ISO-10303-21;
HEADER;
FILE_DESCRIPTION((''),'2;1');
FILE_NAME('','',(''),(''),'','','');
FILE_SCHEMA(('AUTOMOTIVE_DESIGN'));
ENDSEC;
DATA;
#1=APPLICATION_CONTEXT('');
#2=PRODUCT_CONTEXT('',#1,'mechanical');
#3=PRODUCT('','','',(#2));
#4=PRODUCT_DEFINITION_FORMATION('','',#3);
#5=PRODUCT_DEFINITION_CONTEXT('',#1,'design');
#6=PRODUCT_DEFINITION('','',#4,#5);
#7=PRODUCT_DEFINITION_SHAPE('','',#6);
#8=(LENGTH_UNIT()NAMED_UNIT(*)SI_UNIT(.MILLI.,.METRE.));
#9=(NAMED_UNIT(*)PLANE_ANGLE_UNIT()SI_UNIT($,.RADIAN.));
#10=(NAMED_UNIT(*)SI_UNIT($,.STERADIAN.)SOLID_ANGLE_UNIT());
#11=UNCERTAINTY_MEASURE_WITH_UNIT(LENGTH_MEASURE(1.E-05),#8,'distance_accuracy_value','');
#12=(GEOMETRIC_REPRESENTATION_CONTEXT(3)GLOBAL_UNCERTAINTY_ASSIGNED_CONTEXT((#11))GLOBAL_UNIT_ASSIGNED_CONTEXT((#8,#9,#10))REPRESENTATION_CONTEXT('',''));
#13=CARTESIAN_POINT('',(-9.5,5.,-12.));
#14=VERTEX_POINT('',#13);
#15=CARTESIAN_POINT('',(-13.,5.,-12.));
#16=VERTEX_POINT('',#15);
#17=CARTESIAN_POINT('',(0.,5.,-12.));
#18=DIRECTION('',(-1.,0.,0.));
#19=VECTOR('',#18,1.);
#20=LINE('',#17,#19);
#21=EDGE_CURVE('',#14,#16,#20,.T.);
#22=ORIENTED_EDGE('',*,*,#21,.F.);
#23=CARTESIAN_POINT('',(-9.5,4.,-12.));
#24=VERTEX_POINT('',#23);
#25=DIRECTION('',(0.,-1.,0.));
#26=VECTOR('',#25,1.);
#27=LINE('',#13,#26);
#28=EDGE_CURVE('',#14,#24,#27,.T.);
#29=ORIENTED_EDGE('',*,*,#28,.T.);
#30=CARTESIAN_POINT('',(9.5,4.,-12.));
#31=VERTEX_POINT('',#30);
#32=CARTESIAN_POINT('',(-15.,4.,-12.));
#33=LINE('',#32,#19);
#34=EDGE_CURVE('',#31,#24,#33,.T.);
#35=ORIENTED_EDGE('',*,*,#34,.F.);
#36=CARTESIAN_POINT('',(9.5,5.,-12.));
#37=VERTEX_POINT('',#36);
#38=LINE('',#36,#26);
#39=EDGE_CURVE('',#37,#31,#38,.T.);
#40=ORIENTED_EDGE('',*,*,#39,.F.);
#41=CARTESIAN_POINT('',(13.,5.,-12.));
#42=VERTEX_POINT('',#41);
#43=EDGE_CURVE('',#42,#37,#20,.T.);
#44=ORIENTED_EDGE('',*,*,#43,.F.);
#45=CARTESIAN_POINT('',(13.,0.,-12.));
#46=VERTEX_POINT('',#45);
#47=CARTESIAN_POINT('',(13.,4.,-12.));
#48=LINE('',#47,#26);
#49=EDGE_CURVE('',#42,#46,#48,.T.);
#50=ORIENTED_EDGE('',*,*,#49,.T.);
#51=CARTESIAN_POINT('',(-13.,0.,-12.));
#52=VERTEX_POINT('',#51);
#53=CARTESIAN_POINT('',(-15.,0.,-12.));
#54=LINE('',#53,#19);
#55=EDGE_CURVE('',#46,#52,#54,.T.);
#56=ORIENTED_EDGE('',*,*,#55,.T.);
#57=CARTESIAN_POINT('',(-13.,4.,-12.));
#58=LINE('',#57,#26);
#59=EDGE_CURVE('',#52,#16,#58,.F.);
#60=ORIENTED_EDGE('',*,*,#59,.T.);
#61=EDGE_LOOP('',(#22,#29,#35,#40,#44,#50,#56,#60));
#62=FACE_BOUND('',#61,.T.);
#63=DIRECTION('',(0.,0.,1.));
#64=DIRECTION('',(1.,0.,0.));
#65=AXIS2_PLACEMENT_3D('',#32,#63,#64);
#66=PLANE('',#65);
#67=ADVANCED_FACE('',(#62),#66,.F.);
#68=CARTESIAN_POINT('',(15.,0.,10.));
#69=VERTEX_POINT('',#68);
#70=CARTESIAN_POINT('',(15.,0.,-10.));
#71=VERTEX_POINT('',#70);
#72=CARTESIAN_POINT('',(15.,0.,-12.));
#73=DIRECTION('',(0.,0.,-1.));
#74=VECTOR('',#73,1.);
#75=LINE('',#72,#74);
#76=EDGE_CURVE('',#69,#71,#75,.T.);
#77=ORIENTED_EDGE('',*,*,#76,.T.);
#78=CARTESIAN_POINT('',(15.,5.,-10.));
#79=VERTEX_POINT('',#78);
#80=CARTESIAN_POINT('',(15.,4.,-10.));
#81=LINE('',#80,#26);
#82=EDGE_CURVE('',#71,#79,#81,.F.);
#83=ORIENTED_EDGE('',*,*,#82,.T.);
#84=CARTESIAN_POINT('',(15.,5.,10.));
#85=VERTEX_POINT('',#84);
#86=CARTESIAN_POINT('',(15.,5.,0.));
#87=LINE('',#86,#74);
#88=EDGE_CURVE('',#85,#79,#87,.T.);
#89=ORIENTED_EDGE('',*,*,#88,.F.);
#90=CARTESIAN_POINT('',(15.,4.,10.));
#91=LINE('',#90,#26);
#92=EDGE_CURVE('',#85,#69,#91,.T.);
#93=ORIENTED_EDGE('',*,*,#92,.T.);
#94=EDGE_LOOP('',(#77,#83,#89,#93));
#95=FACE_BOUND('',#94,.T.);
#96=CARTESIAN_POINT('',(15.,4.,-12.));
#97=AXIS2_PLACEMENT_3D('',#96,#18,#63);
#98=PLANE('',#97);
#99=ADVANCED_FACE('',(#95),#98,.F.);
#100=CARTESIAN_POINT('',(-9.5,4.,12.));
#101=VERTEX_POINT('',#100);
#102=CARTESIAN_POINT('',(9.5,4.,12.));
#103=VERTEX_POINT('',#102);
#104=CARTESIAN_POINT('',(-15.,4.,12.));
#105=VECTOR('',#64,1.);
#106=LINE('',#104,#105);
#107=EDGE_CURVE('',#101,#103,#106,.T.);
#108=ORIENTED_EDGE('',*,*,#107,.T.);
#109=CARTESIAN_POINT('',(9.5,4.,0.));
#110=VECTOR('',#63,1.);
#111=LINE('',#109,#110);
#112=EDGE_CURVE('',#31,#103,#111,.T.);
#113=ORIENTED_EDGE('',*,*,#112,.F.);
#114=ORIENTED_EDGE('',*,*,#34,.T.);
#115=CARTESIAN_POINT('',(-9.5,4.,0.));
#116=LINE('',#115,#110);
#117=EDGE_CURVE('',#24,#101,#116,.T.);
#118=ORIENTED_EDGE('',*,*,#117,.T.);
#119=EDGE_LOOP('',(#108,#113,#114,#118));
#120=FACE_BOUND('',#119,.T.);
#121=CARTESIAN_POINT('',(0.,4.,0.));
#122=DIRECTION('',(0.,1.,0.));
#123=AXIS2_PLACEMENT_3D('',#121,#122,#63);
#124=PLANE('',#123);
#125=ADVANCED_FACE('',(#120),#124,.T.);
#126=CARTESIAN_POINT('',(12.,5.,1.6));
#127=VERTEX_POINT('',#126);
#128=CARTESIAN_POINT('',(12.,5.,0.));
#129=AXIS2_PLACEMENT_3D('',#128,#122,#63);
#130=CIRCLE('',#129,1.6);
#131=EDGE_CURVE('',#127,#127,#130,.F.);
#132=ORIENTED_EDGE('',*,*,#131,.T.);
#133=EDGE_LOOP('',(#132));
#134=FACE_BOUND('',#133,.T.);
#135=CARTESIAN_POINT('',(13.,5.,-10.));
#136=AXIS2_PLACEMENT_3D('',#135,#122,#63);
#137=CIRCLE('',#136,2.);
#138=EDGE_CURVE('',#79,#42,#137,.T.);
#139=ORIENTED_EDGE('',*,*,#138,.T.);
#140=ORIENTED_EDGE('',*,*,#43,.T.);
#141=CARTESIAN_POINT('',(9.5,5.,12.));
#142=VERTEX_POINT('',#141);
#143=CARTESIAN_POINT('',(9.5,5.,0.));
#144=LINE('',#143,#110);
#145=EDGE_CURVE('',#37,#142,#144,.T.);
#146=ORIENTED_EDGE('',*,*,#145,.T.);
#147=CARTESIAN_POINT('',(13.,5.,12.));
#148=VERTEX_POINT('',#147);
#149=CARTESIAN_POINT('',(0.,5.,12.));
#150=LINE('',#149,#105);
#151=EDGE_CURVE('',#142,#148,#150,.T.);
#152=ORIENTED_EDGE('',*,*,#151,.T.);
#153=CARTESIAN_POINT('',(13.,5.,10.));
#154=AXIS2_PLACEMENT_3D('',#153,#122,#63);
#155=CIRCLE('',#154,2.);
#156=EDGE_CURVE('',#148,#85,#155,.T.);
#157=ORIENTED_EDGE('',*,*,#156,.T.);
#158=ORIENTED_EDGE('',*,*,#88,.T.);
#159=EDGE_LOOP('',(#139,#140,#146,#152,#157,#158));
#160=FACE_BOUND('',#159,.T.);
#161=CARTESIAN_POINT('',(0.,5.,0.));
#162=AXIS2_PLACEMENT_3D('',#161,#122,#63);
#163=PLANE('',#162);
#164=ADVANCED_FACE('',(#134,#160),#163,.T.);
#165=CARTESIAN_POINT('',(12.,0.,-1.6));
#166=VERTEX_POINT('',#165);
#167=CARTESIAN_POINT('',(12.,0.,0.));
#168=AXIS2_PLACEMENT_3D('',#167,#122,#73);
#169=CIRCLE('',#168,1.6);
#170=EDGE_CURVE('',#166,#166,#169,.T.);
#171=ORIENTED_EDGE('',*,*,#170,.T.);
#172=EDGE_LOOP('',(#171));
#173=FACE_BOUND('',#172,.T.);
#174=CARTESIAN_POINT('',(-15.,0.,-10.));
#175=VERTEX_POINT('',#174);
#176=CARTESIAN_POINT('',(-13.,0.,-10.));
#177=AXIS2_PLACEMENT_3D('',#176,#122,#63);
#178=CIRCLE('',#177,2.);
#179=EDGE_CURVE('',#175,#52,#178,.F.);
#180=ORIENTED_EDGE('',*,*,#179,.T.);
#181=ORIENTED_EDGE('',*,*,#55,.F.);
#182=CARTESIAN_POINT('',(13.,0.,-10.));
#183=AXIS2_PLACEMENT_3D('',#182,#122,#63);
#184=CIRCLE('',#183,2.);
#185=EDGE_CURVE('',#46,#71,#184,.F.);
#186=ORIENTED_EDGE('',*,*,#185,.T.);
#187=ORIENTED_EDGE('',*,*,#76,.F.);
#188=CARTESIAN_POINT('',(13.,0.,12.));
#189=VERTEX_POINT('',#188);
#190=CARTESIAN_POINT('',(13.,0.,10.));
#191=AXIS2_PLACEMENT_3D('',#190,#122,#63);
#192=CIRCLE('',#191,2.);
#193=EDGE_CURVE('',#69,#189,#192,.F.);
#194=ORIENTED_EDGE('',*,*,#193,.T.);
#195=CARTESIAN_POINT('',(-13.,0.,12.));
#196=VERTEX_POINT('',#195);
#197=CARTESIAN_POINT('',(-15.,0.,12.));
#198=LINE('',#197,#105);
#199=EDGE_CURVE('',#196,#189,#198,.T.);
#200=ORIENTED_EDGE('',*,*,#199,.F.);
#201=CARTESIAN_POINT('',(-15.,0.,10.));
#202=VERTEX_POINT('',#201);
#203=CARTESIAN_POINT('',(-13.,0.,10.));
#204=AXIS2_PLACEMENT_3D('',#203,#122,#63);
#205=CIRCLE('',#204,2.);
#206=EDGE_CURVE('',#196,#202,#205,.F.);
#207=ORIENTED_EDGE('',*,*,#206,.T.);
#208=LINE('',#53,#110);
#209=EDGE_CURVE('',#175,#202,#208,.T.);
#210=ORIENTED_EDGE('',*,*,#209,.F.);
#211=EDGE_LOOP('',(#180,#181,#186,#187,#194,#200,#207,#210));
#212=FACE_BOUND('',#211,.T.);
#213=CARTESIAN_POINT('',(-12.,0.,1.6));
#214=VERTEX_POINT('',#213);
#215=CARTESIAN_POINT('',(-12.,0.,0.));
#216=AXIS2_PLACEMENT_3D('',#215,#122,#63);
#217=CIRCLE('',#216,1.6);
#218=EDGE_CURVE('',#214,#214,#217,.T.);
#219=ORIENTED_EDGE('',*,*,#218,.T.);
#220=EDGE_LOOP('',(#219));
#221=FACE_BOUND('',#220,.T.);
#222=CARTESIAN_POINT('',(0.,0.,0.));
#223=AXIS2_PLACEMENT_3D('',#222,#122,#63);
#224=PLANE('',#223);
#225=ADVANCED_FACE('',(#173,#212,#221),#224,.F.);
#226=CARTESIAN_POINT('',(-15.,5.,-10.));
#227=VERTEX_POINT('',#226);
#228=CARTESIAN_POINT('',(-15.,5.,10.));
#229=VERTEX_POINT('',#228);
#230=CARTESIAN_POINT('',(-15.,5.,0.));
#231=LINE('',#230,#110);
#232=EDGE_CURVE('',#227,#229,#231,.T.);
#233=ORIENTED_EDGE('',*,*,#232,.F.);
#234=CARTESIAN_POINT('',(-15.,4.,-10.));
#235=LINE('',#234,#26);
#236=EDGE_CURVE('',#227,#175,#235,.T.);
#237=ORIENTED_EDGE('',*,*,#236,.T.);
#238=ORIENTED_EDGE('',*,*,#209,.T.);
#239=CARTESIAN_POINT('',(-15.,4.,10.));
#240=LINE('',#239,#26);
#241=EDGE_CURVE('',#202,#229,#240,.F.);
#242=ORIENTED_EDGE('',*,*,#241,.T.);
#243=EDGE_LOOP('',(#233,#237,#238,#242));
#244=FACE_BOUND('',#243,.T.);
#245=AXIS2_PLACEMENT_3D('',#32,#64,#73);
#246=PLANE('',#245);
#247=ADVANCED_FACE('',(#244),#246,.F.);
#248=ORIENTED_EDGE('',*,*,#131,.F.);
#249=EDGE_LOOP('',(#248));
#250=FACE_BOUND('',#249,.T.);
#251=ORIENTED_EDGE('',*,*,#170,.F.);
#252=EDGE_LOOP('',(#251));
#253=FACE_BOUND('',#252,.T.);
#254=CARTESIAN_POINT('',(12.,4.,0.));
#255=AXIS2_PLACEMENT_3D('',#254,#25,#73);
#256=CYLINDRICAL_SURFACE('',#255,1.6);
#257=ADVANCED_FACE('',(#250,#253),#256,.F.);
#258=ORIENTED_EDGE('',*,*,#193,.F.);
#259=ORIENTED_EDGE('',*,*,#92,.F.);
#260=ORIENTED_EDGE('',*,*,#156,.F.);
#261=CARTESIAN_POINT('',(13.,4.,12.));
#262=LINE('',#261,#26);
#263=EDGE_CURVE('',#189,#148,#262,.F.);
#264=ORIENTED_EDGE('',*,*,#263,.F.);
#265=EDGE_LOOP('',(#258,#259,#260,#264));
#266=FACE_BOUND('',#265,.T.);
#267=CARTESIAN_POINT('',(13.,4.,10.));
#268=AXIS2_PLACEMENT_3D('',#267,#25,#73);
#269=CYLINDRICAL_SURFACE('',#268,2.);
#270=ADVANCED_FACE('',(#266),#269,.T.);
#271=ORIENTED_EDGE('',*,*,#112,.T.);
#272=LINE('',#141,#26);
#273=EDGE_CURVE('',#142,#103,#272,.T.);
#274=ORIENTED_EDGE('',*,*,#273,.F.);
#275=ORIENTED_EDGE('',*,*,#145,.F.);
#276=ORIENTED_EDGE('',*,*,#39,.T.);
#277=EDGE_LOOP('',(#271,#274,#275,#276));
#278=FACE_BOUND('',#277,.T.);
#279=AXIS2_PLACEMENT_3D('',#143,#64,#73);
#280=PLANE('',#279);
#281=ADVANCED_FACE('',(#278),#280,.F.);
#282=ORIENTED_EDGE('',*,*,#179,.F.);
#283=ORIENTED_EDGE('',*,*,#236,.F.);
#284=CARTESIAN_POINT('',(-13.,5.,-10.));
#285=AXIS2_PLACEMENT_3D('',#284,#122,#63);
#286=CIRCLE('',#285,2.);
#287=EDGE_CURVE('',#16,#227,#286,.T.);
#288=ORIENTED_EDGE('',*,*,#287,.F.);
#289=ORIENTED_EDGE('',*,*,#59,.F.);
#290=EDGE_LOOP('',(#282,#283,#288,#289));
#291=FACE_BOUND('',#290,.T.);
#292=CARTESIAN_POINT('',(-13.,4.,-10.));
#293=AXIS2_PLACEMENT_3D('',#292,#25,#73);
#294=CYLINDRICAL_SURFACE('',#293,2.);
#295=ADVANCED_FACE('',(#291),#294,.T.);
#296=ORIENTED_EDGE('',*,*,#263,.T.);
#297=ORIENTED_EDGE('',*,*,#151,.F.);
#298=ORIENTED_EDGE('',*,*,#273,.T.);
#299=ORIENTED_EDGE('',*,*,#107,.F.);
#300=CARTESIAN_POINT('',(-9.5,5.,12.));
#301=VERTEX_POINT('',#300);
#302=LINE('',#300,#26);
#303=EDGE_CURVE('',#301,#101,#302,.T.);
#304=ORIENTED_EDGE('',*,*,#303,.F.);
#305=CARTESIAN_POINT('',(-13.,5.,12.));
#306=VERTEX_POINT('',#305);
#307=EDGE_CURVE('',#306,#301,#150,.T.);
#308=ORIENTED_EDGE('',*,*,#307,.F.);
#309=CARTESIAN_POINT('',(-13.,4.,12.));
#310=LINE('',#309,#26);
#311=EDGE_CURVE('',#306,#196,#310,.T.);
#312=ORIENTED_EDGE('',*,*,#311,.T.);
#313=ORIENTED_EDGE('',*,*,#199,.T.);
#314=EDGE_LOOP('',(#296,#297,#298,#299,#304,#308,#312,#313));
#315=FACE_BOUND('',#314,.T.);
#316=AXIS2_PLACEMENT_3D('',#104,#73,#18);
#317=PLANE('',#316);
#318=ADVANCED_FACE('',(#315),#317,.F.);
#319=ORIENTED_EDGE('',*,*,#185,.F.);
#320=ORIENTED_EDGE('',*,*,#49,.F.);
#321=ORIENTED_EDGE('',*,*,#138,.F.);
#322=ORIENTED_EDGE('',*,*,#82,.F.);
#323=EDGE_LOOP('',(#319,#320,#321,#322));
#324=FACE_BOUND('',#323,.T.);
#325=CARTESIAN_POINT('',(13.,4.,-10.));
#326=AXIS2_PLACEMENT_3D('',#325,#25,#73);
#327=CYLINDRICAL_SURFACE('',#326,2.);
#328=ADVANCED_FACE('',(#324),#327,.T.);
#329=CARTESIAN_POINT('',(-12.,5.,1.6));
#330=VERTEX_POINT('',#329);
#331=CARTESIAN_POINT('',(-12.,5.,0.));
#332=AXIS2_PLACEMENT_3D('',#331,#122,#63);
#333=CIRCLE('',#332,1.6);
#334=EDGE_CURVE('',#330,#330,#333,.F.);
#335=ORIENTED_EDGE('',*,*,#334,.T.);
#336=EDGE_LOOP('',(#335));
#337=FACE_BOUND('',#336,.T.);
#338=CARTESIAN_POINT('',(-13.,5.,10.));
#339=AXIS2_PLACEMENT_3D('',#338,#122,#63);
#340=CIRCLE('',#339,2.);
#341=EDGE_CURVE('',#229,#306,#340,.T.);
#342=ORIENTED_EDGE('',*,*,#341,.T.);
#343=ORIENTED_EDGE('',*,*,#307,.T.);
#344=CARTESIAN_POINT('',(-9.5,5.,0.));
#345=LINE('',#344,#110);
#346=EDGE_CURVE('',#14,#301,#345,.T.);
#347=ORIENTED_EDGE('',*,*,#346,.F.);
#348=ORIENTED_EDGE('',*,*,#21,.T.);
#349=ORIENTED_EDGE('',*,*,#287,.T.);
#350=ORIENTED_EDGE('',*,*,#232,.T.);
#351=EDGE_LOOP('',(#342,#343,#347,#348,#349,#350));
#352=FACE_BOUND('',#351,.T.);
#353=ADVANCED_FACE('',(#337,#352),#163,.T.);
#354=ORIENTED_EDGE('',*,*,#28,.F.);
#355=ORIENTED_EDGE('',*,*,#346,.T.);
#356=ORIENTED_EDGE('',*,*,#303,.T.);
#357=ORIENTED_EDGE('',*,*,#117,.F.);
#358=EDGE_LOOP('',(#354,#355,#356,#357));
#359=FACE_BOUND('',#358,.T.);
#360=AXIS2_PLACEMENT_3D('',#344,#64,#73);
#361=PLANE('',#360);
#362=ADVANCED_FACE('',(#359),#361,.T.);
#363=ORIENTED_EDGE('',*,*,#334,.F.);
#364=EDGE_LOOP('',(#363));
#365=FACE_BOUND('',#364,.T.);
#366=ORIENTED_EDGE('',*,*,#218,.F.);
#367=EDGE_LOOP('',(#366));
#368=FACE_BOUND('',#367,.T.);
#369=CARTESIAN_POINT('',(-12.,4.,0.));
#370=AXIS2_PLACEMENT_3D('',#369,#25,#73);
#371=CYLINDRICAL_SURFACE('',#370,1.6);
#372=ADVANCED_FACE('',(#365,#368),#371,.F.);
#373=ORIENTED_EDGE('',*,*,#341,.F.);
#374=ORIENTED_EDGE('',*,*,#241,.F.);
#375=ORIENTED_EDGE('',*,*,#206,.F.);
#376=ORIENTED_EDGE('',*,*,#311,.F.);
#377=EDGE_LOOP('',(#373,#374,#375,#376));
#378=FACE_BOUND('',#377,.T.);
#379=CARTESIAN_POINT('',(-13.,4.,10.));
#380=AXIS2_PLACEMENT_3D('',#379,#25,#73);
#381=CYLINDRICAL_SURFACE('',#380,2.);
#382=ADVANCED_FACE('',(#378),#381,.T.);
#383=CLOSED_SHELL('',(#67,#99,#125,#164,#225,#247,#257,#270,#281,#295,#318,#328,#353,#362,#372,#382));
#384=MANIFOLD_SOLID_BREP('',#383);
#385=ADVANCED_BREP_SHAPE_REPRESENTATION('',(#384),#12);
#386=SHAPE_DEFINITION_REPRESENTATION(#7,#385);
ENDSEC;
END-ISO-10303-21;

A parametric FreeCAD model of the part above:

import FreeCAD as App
import Part
import Sketcher
Q = App.Units.Quantity


def edges_at(feature, points):
    """Names of the edges that pass closest to the given points."""
    edges = feature.Shape.Edges
    near = lambda p: min(range(len(edges)), key=lambda i: edges[i].distToShape(Part.Vertex(*p))[0])
    return sorted({f"Edge{near(p) + 1}" for p in points})

doc = App.newDocument("Part")
body = doc.addObject("PartDesign::Body", "Body")

sketch1 = body.newObject("Sketcher::SketchObject", "Sketch")
sketch1.AttachmentSupport = (doc.getObject("XZ_Plane"), [""])
sketch1.MapMode = "FlatFace"
sketch1.addGeometry(Part.LineSegment(App.Vector(-15, -12, 0), App.Vector(-15, 12, 0)), False)
sketch1.addGeometry(Part.LineSegment(App.Vector(-15, 12, 0), App.Vector(15, 12, 0)), False)
sketch1.addGeometry(Part.LineSegment(App.Vector(15, 12, 0), App.Vector(15, -12, 0)), False)
sketch1.addGeometry(Part.LineSegment(App.Vector(15, -12, 0), App.Vector(-15, -12, 0)), False)
sketch1.addGeometry(Part.Circle(App.Vector(-12, 0, 0), App.Vector(0, 0, 1), 1.6), False)
sketch1.addGeometry(Part.Circle(App.Vector(12, 0, 0), App.Vector(0, 0, 1), 1.6), False)
sketch1.addConstraint(Sketcher.Constraint("Coincident", 0, 2, 1, 1))
sketch1.addConstraint(Sketcher.Constraint("Coincident", 1, 2, 2, 1))
sketch1.addConstraint(Sketcher.Constraint("Coincident", 2, 2, 3, 1))
sketch1.addConstraint(Sketcher.Constraint("Coincident", 3, 2, 0, 1))
sketch1.addConstraint(Sketcher.Constraint("Vertical", 0))
sketch1.addConstraint(Sketcher.Constraint("Horizontal", 1))
sketch1.addConstraint(Sketcher.Constraint("Vertical", 2))
sketch1.addConstraint(Sketcher.Constraint("Horizontal", 3))
sketch1.addConstraint(Sketcher.Constraint("Equal", 4, 5))
sketch1.addConstraint(Sketcher.Constraint("Symmetric", 4, 3, 5, 3, -1, 1))
sketch1.addConstraint(Sketcher.Constraint("Symmetric", 0, 2, 2, 2, -1, 1))
sketch1.addConstraint(Sketcher.Constraint("PointOnObject", 4, 3, -1))
sketch1.addConstraint(Sketcher.Constraint("Diameter", 4, Q("3.2 mm")))
sketch1.addConstraint(Sketcher.Constraint("DistanceX", 1, 1, 1, 2, Q("30 mm")))
sketch1.addConstraint(Sketcher.Constraint("DistanceY", 0, 1, 0, 2, Q("24 mm")))
sketch1.addConstraint(Sketcher.Constraint("DistanceX", 4, 3, -1, 1, Q("12 mm")))
pad1 = body.newObject("PartDesign::Pad", "Pad")
pad1.Profile = sketch1
pad1.Length = 4
pad1.Reversed = True

sketch2 = body.newObject("Sketcher::SketchObject", "Sketch001")
sketch2.AttachmentSupport = (doc.getObject("XZ_Plane"), [""])
sketch2.MapMode = "FlatFace"
sketch2.AttachmentOffset = App.Placement(App.Vector(0, 0, -4), App.Rotation())
sketch2.addGeometry(Part.LineSegment(App.Vector(-15, -12, 0), App.Vector(-15, 12, 0)), False)
sketch2.addGeometry(Part.LineSegment(App.Vector(-15, 12, 0), App.Vector(-9.5, 12, 0)), False)
sketch2.addGeometry(Part.LineSegment(App.Vector(-9.5, 12, 0), App.Vector(-9.5, -12, 0)), False)
sketch2.addGeometry(Part.LineSegment(App.Vector(-9.5, -12, 0), App.Vector(-15, -12, 0)), False)
sketch2.addGeometry(Part.Circle(App.Vector(-12, 0, 0), App.Vector(0, 0, 1), 1.6), False)
sketch2.addGeometry(Part.LineSegment(App.Vector(9.5, -12, 0), App.Vector(9.5, 12, 0)), False)
sketch2.addGeometry(Part.LineSegment(App.Vector(9.5, 12, 0), App.Vector(15, 12, 0)), False)
sketch2.addGeometry(Part.LineSegment(App.Vector(15, 12, 0), App.Vector(15, -12, 0)), False)
sketch2.addGeometry(Part.LineSegment(App.Vector(15, -12, 0), App.Vector(9.5, -12, 0)), False)
sketch2.addGeometry(Part.Circle(App.Vector(12, 0, 0), App.Vector(0, 0, 1), 1.6), False)
sketch2.addConstraint(Sketcher.Constraint("Coincident", 0, 2, 1, 1))
sketch2.addConstraint(Sketcher.Constraint("Coincident", 1, 2, 2, 1))
sketch2.addConstraint(Sketcher.Constraint("Coincident", 2, 2, 3, 1))
sketch2.addConstraint(Sketcher.Constraint("Coincident", 3, 2, 0, 1))
sketch2.addConstraint(Sketcher.Constraint("Coincident", 5, 2, 6, 1))
sketch2.addConstraint(Sketcher.Constraint("Coincident", 6, 2, 7, 1))
sketch2.addConstraint(Sketcher.Constraint("Coincident", 7, 2, 8, 1))
sketch2.addConstraint(Sketcher.Constraint("Coincident", 8, 2, 5, 1))
sketch2.addConstraint(Sketcher.Constraint("Vertical", 0))
sketch2.addConstraint(Sketcher.Constraint("Horizontal", 1))
sketch2.addConstraint(Sketcher.Constraint("Vertical", 2))
sketch2.addConstraint(Sketcher.Constraint("Horizontal", 3))
sketch2.addConstraint(Sketcher.Constraint("Vertical", 5))
sketch2.addConstraint(Sketcher.Constraint("Horizontal", 6))
sketch2.addConstraint(Sketcher.Constraint("Vertical", 7))
sketch2.addConstraint(Sketcher.Constraint("Horizontal", 8))
sketch2.addConstraint(Sketcher.Constraint("Equal", 4, 9))
sketch2.addConstraint(Sketcher.Constraint("Symmetric", 4, 3, 9, 3, -1, 1))
sketch2.addConstraint(Sketcher.Constraint("Symmetric", 2, 2, 5, 2, -1, 1))
sketch2.addConstraint(Sketcher.Constraint("Symmetric", 0, 2, 7, 2, -1, 1))
sketch2.addConstraint(Sketcher.Constraint("PointOnObject", 4, 3, -1))
sketch2.addConstraint(Sketcher.Constraint("Horizontal", 1, 2, 5, 2))
sketch2.addConstraint(Sketcher.Constraint("Diameter", 4, Q("3.2 mm")))
sketch2.addConstraint(Sketcher.Constraint("DistanceY", 0, 1, 0, 2, Q("24 mm")))
sketch2.addConstraint(Sketcher.Constraint("DistanceX", 1, 1, 1, 2, Q("5.5 mm")))
sketch2.addConstraint(Sketcher.Constraint("DistanceX", 4, 3, -1, 1, Q("12 mm")))
sketch2.addConstraint(Sketcher.Constraint("DistanceX", 0, 2, -1, 1, Q("15 mm")))
pad2 = body.newObject("PartDesign::Pad", "Pad001")
pad2.Profile = sketch2
pad2.Length = 1
pad2.Reversed = True
doc.recompute()

fillet = body.newObject("PartDesign::Fillet", "Fillet")
fillet.Base = (pad2, edges_at(pad2, [
    (15, 2.5, 12),
    (-15, 2.5, 12),
    (-15, 2.5, -12),
    (15, 2.5, -12),
]))
fillet.Radius = 2

doc.recompute()
